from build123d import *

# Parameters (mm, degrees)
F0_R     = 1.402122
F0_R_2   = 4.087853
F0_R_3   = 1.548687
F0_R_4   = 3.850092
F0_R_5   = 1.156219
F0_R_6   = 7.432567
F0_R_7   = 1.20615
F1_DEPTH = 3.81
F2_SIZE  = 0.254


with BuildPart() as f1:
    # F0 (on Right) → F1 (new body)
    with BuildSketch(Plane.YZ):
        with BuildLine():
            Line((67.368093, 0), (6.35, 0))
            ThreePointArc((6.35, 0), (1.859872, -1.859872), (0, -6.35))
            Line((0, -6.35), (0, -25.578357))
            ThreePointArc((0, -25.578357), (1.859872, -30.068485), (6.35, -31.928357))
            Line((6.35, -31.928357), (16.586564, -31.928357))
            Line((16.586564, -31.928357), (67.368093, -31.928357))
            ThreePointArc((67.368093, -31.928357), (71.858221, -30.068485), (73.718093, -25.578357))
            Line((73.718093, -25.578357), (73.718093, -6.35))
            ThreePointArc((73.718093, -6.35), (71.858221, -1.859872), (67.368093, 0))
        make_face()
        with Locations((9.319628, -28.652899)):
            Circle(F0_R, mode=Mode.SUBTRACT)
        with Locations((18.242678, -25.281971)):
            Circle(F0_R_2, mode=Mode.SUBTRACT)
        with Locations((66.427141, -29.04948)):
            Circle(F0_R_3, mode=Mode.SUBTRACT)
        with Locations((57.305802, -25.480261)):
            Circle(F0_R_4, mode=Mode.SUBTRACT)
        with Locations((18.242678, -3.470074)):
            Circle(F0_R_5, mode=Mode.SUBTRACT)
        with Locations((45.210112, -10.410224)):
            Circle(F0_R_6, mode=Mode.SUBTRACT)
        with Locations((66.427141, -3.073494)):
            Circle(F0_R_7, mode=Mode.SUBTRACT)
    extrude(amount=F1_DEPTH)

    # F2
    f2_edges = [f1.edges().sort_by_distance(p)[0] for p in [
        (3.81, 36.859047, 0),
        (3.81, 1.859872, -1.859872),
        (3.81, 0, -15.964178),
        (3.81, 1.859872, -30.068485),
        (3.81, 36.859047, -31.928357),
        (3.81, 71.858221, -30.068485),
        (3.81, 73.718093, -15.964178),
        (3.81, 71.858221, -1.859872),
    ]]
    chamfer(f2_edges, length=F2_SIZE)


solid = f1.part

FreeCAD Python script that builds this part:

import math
import FreeCAD as App
import Part
import Sketcher
from FreeCAD import Vector
Q = App.Units.Quantity


def edges_at(feature, points):
    """Names of the edges that pass closest to the given points."""
    edges = feature.Shape.Edges
    near = lambda p: min(range(len(edges)), key=lambda i: edges[i].distToShape(Part.Vertex(*p))[0])
    return sorted({f"Edge{near(p) + 1}" for p in points})

doc = App.newDocument("Part")
body = doc.addObject("PartDesign::Body", "Body")

# Sketch on YZ plane
sketch1 = doc.addObject("Sketcher::SketchObject", "Sketch")
body.addObject(sketch1)
sketch1.AttachmentSupport = (doc.YZ_Plane, [""])
sketch1.MapMode = "FlatFace"
sketch1.addGeometry([
    Part.LineSegment(Vector(67.4, 0, 0), Vector(6.3, 0, 0)),  # 0
    Part.ArcOfCircle(Part.Circle(Vector(6.4, -6.4, 0), Vector(0, 0, 1), 6.4), math.radians(90), math.radians(180)),  # 1
    Part.LineSegment(Vector(0, -6.3, 0), Vector(0, -25.6, 0)),  # 2
    Part.ArcOfCircle(Part.Circle(Vector(6.4, -25.6, 0), Vector(0, 0, 1), 6.4), math.radians(-180), math.radians(-90)),  # 3
    Part.LineSegment(Vector(6.3, -31.9, 0), Vector(67.4, -31.9, 0)),  # 4
    Part.ArcOfCircle(Part.Circle(Vector(67.4, -25.6, 0), Vector(0, 0, 1), 6.4), math.radians(-90), math.radians(0)),  # 5
    Part.LineSegment(Vector(73.7, -25.6, 0), Vector(73.7, -6.3, 0)),  # 6
    Part.ArcOfCircle(Part.Circle(Vector(67.4, -6.4, 0), Vector(0, 0, 1), 6.4), math.radians(0), math.radians(90)),  # 7
    Part.Circle(Vector(9.3, -28.7, 0), Vector(0, 0, 1), 1.4),  # 8
    Part.Circle(Vector(18.2, -25.3, 0), Vector(0, 0, 1), 4.1),  # 9
    Part.Circle(Vector(66.4, -29, 0), Vector(0, 0, 1), 1.5),  # 10
    Part.Circle(Vector(57.3, -25.5, 0), Vector(0, 0, 1), 3.9),  # 11
    Part.Circle(Vector(18.2, -3.5, 0), Vector(0, 0, 1), 1.2),  # 12
    Part.Circle(Vector(45.2, -10.4, 0), Vector(0, 0, 1), 7.4),  # 13
    Part.Circle(Vector(66.4, -3.1, 0), Vector(0, 0, 1), 1.2),  # 14
], False)
sketch1.addConstraint([
    Sketcher.Constraint("Tangent", 0, 2, 1, 1),
    Sketcher.Constraint("Tangent", 1, 2, 2, 1),
    Sketcher.Constraint("Tangent", 2, 2, 3, 1),
    Sketcher.Constraint("Tangent", 3, 2, 4, 1),
    Sketcher.Constraint("Tangent", 4, 2, 5, 1),
    Sketcher.Constraint("Tangent", 5, 2, 6, 1),
    Sketcher.Constraint("Tangent", 6, 2, 7, 1),
    Sketcher.Constraint("Tangent", 7, 2, 0, 1),
    Sketcher.Constraint("Horizontal", 0),
    Sketcher.Constraint("Vertical", 2),
    Sketcher.Constraint("Horizontal", 4),
    Sketcher.Constraint("Vertical", 6),
    Sketcher.Constraint("Equal", 1, 3),
    Sketcher.Constraint("Equal", 3, 5),
    Sketcher.Constraint("Equal", 5, 7),
    Sketcher.Constraint("PointOnObject", 0, 2, -1),
    Sketcher.Constraint("PointOnObject", 1, 2, -2),
    Sketcher.Constraint("Vertical", 9, 3, 12, 3),
    Sketcher.Constraint("Vertical", 10, 3, 14, 3),
    Sketcher.Constraint("Radius", 1, Q("0.25 in")),
    Sketcher.Constraint("Diameter", 14, Q("2.4123 mm")),
    Sketcher.Constraint("Diameter", 12, Q("2.312438 mm")),
    Sketcher.Constraint("Diameter", 8, Q("2.804244 mm")),
    Sketcher.Constraint("Diameter", 9, Q("8.175706 mm")),
    Sketcher.Constraint("Diameter", 10, Q("3.097374 mm")),
    Sketcher.Constraint("Diameter", 11, Q("7.700184 mm")),
    Sketcher.Constraint("Diameter", 13, Q("14.865134 mm")),
    Sketcher.Constraint("DistanceY", 8, 3, -1, 1, Q("28.652899 mm")),
    Sketcher.Constraint("DistanceX", 0, 2, 0, 1, Q("61.018093 mm")),
    Sketcher.Constraint("DistanceY", 2, 2, 2, 1, Q("19.228357 mm")),
    Sketcher.Constraint("DistanceX", -1, 1, 9, 3, Q("18.242678 mm")),
    Sketcher.Constraint("DistanceY", 9, 3, -1, 1, Q("25.281971 mm")),
    Sketcher.Constraint("DistanceX", -1, 1, 10, 3, Q("66.427141 mm")),
    Sketcher.Constraint("DistanceY", 10, 3, -1, 1, Q("29.04948 mm")),
    Sketcher.Constraint("DistanceY", 11, 3, -1, 1, Q("25.480261 mm")),
    Sketcher.Constraint("DistanceX", 8, 3, 9, 3, Q("8.92305 mm")),
    Sketcher.Constraint("DistanceX", 11, 3, 10, 3, Q("9.121339 mm")),
    Sketcher.Constraint("DistanceX", 13, 3, 11, 3, Q("12.09569 mm")),
    Sketcher.Constraint("DistanceY", 13, 3, 12, 3, Q("6.94015 mm")),
    Sketcher.Constraint("DistanceY", 13, 3, 14, 3, Q("7.33673 mm")),
    Sketcher.Constraint("DistanceY", 12, 3, -1, 1, Q("3.470074 mm")),
])
pad1 = doc.addObject("PartDesign::Pad", "Pad")
body.addObject(pad1)
pad1.Profile = sketch1
pad1.Length = Q("0.15 in")
doc.recompute()

chamfer = doc.addObject("PartDesign::Chamfer", "Chamfer")
body.addObject(chamfer)
chamfer.Base = (pad1, edges_at(pad1, [
    (3.81, 36.859, 0),
    (3.81, 1.86, -1.86),
    (3.81, 0, -15.964),
    (3.81, 1.86, -30.068),
    (3.81, 36.859, -31.928),
    (3.81, 71.858, -30.068),
    (3.81, 73.718, -15.964),
    (3.81, 71.858, -1.86),
]))
chamfer.Size = Q("0.01 in")

doc.recompute()
